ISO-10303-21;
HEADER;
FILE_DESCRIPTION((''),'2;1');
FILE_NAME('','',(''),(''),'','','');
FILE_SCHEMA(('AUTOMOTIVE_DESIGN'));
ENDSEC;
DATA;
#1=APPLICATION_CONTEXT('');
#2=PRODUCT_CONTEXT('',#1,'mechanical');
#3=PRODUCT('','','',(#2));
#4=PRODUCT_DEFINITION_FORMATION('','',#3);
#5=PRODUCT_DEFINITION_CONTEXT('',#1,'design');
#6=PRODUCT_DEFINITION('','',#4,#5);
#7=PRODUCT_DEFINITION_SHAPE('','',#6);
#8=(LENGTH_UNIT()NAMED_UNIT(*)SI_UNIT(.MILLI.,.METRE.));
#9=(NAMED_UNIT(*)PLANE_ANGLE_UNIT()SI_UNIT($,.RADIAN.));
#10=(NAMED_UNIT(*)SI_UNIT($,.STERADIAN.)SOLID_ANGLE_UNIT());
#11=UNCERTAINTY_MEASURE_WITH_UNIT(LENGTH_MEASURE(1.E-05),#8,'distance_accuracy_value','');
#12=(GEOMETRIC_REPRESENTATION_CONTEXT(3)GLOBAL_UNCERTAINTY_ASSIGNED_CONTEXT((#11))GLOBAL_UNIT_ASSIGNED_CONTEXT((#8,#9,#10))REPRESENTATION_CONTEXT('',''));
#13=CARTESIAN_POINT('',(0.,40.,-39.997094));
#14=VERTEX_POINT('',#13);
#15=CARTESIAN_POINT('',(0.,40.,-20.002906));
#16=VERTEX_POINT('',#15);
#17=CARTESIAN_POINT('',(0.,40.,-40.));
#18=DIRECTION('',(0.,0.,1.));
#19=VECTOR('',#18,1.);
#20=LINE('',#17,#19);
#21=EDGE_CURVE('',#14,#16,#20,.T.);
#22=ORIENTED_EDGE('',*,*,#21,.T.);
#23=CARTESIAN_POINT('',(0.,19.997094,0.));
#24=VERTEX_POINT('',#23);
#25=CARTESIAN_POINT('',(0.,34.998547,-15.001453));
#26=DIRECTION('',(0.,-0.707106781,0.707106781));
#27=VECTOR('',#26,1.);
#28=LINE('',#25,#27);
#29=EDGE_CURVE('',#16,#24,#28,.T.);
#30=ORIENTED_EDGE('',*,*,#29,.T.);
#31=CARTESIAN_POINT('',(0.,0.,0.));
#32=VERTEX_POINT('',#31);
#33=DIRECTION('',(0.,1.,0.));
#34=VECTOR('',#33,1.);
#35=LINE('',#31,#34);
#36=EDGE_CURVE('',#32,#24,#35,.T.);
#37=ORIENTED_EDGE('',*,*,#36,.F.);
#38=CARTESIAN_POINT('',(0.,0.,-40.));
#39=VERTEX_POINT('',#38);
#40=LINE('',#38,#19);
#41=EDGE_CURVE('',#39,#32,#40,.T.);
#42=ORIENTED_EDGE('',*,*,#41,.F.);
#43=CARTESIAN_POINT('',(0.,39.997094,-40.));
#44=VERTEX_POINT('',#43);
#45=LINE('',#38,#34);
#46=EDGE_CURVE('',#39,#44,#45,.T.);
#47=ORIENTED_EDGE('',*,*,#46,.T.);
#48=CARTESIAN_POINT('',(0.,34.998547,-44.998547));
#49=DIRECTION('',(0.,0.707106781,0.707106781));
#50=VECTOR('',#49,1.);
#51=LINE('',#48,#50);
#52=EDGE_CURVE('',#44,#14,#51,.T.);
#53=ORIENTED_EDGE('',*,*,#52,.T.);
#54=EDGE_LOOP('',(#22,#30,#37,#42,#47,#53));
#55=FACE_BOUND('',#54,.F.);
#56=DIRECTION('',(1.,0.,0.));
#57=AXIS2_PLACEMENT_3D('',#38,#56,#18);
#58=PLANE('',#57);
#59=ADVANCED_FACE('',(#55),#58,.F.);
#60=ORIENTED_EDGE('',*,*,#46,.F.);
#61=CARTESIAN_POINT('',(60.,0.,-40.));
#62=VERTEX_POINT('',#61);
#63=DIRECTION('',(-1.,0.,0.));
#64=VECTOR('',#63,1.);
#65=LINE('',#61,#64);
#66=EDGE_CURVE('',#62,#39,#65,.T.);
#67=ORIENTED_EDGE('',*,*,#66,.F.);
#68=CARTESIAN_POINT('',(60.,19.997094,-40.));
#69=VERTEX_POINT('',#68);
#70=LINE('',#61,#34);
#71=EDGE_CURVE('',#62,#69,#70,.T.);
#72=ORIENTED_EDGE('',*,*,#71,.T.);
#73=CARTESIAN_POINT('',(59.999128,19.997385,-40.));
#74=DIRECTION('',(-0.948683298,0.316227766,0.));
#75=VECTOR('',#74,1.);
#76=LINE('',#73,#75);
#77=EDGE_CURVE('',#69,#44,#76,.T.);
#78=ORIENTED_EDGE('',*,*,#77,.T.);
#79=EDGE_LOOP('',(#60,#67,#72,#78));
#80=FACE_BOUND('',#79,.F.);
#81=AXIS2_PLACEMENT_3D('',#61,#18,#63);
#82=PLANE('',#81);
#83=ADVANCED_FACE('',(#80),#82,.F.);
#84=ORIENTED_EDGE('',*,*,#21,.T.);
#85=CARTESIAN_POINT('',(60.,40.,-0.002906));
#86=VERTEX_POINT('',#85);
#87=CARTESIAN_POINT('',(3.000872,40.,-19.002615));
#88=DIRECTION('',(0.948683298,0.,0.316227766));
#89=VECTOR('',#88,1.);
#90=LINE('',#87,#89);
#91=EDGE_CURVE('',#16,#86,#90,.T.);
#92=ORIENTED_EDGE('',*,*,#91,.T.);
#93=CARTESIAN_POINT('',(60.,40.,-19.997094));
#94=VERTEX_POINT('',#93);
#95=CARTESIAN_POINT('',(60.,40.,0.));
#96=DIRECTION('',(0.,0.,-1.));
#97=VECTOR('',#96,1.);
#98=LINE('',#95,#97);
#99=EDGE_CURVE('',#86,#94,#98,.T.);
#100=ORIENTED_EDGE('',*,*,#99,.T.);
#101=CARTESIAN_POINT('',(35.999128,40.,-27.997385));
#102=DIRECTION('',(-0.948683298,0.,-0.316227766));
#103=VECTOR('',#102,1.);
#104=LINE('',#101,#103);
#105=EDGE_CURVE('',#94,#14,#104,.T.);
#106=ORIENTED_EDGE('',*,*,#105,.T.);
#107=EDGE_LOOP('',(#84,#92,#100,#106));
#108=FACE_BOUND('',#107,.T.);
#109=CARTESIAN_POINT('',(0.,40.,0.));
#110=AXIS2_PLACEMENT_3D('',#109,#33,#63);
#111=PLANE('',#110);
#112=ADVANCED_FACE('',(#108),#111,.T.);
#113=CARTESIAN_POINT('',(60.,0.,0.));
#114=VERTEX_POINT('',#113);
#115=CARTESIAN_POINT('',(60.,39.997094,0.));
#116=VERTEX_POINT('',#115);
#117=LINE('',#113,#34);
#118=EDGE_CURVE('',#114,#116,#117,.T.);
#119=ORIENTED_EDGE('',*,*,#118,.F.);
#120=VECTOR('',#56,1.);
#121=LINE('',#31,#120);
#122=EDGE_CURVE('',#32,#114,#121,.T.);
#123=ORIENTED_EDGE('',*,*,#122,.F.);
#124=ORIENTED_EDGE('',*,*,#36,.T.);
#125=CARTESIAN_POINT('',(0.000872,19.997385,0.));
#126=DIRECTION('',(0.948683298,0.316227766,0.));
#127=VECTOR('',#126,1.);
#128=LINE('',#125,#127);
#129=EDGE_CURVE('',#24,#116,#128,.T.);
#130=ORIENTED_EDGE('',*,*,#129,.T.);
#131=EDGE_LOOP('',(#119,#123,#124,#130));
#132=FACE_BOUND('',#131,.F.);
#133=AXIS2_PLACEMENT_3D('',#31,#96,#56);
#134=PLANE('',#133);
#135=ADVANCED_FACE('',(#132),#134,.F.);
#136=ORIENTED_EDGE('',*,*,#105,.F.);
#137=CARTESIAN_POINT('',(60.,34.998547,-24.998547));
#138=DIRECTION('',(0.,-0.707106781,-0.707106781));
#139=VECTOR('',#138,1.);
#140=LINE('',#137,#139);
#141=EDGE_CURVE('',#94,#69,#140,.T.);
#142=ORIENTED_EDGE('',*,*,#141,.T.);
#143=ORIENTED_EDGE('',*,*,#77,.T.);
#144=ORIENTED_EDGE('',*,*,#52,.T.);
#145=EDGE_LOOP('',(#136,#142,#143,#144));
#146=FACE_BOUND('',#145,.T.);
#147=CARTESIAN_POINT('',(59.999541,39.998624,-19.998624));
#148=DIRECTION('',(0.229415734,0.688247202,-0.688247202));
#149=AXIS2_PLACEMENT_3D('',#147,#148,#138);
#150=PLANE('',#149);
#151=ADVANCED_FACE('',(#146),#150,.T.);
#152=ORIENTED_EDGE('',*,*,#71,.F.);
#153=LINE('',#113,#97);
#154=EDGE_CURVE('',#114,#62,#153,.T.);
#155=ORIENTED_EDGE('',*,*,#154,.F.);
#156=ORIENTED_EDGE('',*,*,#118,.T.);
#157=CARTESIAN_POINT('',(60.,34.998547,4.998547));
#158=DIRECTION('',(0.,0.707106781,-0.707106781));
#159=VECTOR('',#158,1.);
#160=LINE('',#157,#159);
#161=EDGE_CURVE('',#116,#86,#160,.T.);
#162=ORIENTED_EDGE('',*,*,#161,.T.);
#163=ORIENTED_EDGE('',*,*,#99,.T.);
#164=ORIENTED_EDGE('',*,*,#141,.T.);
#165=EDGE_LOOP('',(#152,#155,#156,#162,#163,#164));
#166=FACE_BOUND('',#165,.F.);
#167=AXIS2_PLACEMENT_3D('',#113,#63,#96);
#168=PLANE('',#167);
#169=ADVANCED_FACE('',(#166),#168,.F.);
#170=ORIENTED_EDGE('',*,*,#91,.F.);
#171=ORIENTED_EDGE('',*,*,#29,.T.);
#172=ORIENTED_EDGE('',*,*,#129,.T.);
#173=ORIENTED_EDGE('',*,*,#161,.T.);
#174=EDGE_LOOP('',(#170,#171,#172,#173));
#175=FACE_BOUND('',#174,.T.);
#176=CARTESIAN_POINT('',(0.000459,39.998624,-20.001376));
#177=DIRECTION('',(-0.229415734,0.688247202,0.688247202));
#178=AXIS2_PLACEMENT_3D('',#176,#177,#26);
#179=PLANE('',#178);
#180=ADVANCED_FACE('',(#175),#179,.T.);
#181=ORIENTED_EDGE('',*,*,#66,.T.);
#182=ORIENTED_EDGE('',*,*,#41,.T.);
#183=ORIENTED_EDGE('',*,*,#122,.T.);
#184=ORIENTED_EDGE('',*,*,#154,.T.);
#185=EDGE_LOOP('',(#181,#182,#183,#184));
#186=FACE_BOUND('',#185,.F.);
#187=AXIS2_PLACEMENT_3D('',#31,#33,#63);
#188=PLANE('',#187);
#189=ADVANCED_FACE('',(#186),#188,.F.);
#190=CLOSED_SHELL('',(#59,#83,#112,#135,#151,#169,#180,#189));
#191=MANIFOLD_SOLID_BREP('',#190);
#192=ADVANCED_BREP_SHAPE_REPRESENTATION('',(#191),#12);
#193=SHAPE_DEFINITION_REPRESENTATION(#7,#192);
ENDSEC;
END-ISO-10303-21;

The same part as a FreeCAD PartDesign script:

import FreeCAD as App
import Part
import Sketcher
from FreeCAD import Vector

doc = App.newDocument("Part")
body = doc.addObject("PartDesign::Body", "Body")

# Sketch on XZ plane
sketch1 = body.newObject("Sketcher::SketchObject", "Sketch")
sketch1.AttachmentSupport = (doc.getObject("XZ_Plane"), [""])
sketch1.MapMode = "FlatFace"
sketch1.addGeometry(Part.LineSegment(Vector(0, -40, 0), Vector(0, 0, 0)), False)
sketch1.addGeometry(Part.LineSegment(Vector(0, 0, 0), Vector(60, 0, 0)), False)
sketch1.addGeometry(Part.LineSegment(Vector(60, 0, 0), Vector(60, -40, 0)), False)
sketch1.addGeometry(Part.LineSegment(Vector(60, -40, 0), Vector(0, -40, 0)), False)
sketch1.addConstraint(Sketcher.Constraint("Coincident", 0, 2, 1, 1))
sketch1.addConstraint(Sketcher.Constraint("Coincident", 1, 2, 2, 1))
sketch1.addConstraint(Sketcher.Constraint("Coincident", 2, 2, 3, 1))
sketch1.addConstraint(Sketcher.Constraint("Coincident", 3, 2, 0, 1))
sketch1.addConstraint(Sketcher.Constraint("Vertical", 0))
sketch1.addConstraint(Sketcher.Constraint("Horizontal", 1))
sketch1.addConstraint(Sketcher.Constraint("Vertical", 2))
sketch1.addConstraint(Sketcher.Constraint("Horizontal", 3))
sketch1.addConstraint(Sketcher.Constraint("Coincident", 0, 2, -1, 1))
sketch1.addConstraint(Sketcher.Constraint("DistanceX", 1, 1, 1, 2, 60.0))
sketch1.addConstraint(Sketcher.Constraint("DistanceY", 0, 1, 0, 2, 40.0))
pad1 = body.newObject("PartDesign::Pad", "Pad")
pad1.Profile = sketch1
pad1.Length = 40
pad1.Reversed = True

# Sketch on an angled plane
sketch2 = body.newObject("Sketcher::SketchObject", "Sketch001")
sketch2.Placement = App.Placement(Vector(0, 40, -20), App.Rotation(Vector(0, -0.707106781, 0.707106781), Vector(0.973328527, 0.162221421, 0.162221421), Vector(-0.229415734, 0.688247202, 0.688247202), "ZXY"))
sketch2.addGeometry(Part.LineSegment(Vector(-6.4039, 77.4757, 0), Vector(-6.4039, -15.4846, 0)), False)
sketch2.addGeometry(Part.LineSegment(Vector(-6.4039, -15.4846, 0), Vector(38.9012, -15.4846, 0)), False)
sketch2.addGeometry(Part.LineSegment(Vector(38.9012, -15.4846, 0), Vector(38.9012, 77.4757, 0)), False)
sketch2.addGeometry(Part.LineSegment(Vector(38.9012, 77.4757, 0), Vector(-6.4039, 77.4757, 0)), False)
sketch2.addConstraint(Sketcher.Constraint("Coincident", 0, 2, 1, 1))
sketch2.addConstraint(Sketcher.Constraint("Coincident", 1, 2, 2, 1))
sketch2.addConstraint(Sketcher.Constraint("Coincident", 2, 2, 3, 1))
sketch2.addConstraint(Sketcher.Constraint("Coincident", 3, 2, 0, 1))
sketch2.addConstraint(Sketcher.Constraint("Vertical", 0))
sketch2.addConstraint(Sketcher.Constraint("Horizontal", 1))
sketch2.addConstraint(Sketcher.Constraint("Vertical", 2))
sketch2.addConstraint(Sketcher.Constraint("Horizontal", 3))
sketch2.addConstraint(Sketcher.Constraint("DistanceX", 1, 1, 1, 2, 45.305))
sketch2.addConstraint(Sketcher.Constraint("DistanceY", 0, 2, 0, 1, 92.9603))
sketch2.addConstraint(Sketcher.Constraint("DistanceX", 0, 2, -1, 1, 6.404))
sketch2.addConstraint(Sketcher.Constraint("DistanceY", 0, 2, -1, 1, 15.4846))
pocket1 = body.newObject("PartDesign::Pocket", "Pocket")
pocket1.Profile = sketch2
pocket1.Length = 40
pocket1.Reversed = True
doc.recompute()

datumline = body.newObject("PartDesign::Line", "DatumLine")
datumline.Placement = App.Placement(Vector(30, 0, -20), App.Rotation(Vector(0, 0, 1), Vector(0, 1, 0)))
polarpattern = body.newObject("PartDesign::PolarPattern", "PolarPattern")
polarpattern.Originals = [pocket1]
polarpattern.Axis = (datumline, [""])
polarpattern.Angle = 360
polarpattern.Occurrences = 2
body.Tip = polarpattern

doc.recompute()
